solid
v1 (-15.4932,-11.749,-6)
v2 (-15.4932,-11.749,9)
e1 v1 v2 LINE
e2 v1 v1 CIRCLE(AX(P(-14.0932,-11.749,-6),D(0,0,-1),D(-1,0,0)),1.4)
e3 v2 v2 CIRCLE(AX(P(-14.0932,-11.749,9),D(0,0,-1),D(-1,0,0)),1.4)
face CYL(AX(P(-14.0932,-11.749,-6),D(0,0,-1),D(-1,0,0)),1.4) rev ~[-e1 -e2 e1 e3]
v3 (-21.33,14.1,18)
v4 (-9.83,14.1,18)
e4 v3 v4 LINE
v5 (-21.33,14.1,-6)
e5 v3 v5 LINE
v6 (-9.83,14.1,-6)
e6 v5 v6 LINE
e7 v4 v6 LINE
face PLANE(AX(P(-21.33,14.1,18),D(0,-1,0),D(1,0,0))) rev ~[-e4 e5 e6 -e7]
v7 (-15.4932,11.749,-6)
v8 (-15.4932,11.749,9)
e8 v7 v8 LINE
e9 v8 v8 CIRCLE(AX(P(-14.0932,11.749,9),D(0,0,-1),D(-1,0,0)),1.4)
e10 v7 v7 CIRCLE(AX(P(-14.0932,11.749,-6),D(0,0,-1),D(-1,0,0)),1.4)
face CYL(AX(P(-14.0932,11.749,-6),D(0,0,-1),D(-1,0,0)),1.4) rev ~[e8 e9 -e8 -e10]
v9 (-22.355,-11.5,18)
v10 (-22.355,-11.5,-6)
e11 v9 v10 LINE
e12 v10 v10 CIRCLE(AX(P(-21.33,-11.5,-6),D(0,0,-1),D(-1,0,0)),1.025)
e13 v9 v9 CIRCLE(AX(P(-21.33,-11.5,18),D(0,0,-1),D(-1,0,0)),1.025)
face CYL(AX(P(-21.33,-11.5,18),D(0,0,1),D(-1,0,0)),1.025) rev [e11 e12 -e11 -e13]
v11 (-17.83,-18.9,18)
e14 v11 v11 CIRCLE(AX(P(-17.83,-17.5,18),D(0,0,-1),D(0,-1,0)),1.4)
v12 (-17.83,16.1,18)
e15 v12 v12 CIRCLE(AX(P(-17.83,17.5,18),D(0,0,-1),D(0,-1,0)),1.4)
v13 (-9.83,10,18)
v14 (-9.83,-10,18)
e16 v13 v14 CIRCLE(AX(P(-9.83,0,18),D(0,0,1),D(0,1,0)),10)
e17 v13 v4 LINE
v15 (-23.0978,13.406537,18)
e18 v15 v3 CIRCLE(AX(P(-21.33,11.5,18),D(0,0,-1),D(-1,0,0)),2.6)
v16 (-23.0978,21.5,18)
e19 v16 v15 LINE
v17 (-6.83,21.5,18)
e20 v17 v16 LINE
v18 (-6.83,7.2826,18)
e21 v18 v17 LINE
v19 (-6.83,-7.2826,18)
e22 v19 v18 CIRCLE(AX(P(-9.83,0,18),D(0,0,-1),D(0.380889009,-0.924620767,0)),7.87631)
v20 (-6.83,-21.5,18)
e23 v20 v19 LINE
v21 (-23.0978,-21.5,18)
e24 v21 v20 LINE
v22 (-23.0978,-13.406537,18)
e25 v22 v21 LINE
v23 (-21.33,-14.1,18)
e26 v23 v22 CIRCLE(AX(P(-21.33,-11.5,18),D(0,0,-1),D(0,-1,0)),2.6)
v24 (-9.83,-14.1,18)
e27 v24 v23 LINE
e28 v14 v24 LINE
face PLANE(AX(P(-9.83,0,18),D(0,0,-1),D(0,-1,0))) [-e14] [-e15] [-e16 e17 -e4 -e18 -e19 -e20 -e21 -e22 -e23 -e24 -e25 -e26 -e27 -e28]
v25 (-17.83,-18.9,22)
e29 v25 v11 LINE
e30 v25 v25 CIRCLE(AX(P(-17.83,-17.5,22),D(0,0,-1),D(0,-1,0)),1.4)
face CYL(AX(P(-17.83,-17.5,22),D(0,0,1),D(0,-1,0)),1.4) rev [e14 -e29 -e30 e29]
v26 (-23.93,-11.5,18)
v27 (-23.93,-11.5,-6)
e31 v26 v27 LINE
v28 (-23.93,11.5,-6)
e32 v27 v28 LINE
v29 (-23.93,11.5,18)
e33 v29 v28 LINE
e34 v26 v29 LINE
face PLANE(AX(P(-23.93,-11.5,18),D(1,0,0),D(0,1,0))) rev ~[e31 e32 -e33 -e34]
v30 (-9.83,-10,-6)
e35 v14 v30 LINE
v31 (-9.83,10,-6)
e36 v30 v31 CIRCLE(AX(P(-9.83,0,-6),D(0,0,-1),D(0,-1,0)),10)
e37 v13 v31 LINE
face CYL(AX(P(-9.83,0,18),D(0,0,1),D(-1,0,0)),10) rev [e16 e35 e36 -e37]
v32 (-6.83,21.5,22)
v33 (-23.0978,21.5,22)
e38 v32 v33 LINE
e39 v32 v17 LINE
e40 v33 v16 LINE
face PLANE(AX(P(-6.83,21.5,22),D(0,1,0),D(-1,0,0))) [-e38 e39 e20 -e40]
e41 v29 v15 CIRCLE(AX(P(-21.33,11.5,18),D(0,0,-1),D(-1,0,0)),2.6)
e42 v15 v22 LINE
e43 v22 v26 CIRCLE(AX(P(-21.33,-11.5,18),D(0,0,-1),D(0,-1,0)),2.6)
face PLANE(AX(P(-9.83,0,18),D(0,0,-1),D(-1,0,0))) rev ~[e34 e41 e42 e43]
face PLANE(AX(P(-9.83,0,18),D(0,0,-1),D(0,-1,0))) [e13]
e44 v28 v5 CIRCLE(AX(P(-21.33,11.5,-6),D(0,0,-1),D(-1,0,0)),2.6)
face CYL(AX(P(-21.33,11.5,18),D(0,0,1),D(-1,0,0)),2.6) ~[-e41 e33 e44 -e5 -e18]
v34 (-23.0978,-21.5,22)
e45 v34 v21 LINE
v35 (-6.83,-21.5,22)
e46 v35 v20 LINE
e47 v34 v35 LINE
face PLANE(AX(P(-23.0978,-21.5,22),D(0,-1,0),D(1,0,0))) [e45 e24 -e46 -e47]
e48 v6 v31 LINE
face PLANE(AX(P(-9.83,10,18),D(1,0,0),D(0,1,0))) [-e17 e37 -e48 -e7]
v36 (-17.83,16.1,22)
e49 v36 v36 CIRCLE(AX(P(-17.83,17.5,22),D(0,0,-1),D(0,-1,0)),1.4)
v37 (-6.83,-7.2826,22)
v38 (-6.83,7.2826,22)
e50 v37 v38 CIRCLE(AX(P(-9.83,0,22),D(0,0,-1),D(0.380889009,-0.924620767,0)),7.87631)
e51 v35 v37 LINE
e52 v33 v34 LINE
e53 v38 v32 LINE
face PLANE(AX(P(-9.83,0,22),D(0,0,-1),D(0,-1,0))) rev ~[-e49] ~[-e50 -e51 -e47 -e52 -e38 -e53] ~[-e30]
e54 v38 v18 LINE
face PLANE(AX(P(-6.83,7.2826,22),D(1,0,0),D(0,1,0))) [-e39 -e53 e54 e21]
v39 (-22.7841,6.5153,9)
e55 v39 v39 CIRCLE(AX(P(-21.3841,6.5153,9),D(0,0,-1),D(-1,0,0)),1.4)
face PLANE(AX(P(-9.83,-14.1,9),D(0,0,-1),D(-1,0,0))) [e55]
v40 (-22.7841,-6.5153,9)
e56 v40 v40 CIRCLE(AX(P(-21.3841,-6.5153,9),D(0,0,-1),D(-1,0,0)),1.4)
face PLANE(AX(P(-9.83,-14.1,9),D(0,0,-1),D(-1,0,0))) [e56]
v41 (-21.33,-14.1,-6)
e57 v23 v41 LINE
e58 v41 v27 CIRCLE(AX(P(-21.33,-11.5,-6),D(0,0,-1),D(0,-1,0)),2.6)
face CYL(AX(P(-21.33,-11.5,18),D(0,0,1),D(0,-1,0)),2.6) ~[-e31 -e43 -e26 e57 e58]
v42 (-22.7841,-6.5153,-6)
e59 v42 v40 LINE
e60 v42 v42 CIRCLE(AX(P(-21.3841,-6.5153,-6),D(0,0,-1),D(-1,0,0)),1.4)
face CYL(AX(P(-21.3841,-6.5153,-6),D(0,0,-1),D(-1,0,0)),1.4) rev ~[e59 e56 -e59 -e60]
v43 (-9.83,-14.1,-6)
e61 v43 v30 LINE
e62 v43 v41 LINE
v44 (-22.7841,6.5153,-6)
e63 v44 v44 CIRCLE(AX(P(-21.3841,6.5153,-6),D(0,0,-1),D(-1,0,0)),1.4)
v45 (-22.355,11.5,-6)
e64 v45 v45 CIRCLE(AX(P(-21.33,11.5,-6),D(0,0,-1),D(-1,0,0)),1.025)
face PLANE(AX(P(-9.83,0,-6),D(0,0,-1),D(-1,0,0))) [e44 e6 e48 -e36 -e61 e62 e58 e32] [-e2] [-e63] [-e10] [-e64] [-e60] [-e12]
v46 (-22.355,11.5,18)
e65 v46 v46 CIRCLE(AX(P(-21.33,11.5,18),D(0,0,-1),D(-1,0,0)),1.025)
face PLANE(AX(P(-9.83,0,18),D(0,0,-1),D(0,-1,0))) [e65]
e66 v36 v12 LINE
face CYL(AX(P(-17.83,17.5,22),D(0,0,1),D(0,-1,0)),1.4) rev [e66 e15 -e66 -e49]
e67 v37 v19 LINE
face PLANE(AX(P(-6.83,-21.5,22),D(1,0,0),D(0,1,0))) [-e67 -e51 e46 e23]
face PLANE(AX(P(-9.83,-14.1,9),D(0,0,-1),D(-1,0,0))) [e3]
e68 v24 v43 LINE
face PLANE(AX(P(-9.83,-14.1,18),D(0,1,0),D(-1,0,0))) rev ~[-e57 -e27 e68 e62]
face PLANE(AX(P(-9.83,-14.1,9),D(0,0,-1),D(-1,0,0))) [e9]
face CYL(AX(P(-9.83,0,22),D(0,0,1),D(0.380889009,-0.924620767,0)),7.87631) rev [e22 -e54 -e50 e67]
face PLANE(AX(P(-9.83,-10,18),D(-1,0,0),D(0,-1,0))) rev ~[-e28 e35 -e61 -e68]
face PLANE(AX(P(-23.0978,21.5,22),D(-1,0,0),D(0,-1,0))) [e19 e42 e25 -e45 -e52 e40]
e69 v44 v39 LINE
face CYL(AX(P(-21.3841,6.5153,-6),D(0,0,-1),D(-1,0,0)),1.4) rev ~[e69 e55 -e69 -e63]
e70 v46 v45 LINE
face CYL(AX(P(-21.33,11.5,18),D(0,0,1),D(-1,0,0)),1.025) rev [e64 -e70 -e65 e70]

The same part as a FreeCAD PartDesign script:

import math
import FreeCAD as App
import Part
import Sketcher

doc = App.newDocument("Part")
body = doc.addObject("PartDesign::Body", "Body")

sketch1 = body.newObject("Sketcher::SketchObject", "Sketch")
sketch1.AttachmentSupport = (doc.getObject("XY_Plane"), [""])
sketch1.MapMode = "FlatFace"
sketch1.AttachmentOffset = App.Placement(App.Vector(0, 0, 22), App.Rotation())
sketch1.addGeometry([
    Part.LineSegment(App.Vector(-23.0978, -21.5, 0), App.Vector(-23.0978, 21.5, 0)),
    Part.LineSegment(App.Vector(-23.0978, 21.5, 0), App.Vector(-6.83, 21.5, 0)),
    Part.LineSegment(App.Vector(-6.83, 21.5, 0), App.Vector(-6.83, 7.2826, 0)),
    Part.ArcOfCircle(Part.Circle(App.Vector(-9.83, 0, 0), App.Vector(0, 0, 1), 7.87631), math.radians(67.611239), math.radians(292.388761)),
    Part.LineSegment(App.Vector(-6.83, -7.2826, 0), App.Vector(-6.83, -21.5, 0)),
    Part.LineSegment(App.Vector(-6.83, -21.5, 0), App.Vector(-23.0978, -21.5, 0)),
    Part.Circle(App.Vector(-17.83, -17.5, 0), App.Vector(0, 0, 1), 1.4),
    Part.Circle(App.Vector(-17.83, 17.5, 0), App.Vector(0, 0, 1), 1.4),
], False)
sketch1.addConstraint([
    Sketcher.Constraint("Coincident", 0, 2, 1, 1),
    Sketcher.Constraint("Coincident", 1, 2, 2, 1),
    Sketcher.Constraint("Coincident", 2, 2, 3, 1),
    Sketcher.Constraint("Coincident", 3, 2, 4, 1),
    Sketcher.Constraint("Coincident", 4, 2, 5, 1),
    Sketcher.Constraint("Coincident", 5, 2, 0, 1),
    Sketcher.Constraint("Vertical", 0),
    Sketcher.Constraint("Horizontal", 1),
    Sketcher.Constraint("Vertical", 2),
    Sketcher.Constraint("Vertical", 4),
    Sketcher.Constraint("Horizontal", 5),
    Sketcher.Constraint("Equal", 6, 7),
    Sketcher.Constraint("Symmetric", 6, 3, 7, 3, -1),
    Sketcher.Constraint("Symmetric", 2, 2, 3, 2, -1),
    Sketcher.Constraint("Equal", 2, 4),
    Sketcher.Constraint("Diameter", 6, 2.8),
    Sketcher.Constraint("DistanceY", 7, 3, 0, 2, 4.0),
    Sketcher.Constraint("DistanceY", 0, 1, 0, 2, 43.0),
    Sketcher.Constraint("DistanceX", 6, 3, 3, 3, 8.0),
    Sketcher.Constraint("DistanceX", 7, 3, 1, 2, 11.0),
    Sketcher.Constraint("Radius", 3, 7.8763),
    Sketcher.Constraint("DistanceX", 3, 3, -1, 1, 9.83),
    Sketcher.Constraint("DistanceX", 1, 1, 1, 2, 16.2678),
])
pad1 = body.newObject("PartDesign::Pad", "Pad")
pad1.Profile = sketch1
pad1.Length = 4
pad1.Reversed = True

sketch2 = body.newObject("Sketcher::SketchObject", "Sketch001")
sketch2.AttachmentSupport = (doc.getObject("XY_Plane"), [""])
sketch2.MapMode = "FlatFace"
sketch2.AttachmentOffset = App.Placement(App.Vector(0, 0, 18), App.Rotation())
sketch2.addGeometry([
    Part.LineSegment(App.Vector(-9.83, -10, 0), App.Vector(-9.83, -14.1, 0)),
    Part.LineSegment(App.Vector(-9.83, -14.1, 0), App.Vector(-21.33, -14.1, 0)),
    Part.ArcOfCircle(Part.Circle(App.Vector(-21.33, -11.5, 0), App.Vector(0, 0, 1), 2.6), math.radians(180), math.radians(270)),
    Part.LineSegment(App.Vector(-23.93, -11.5, 0), App.Vector(-23.93, 11.5, 0)),
    Part.ArcOfCircle(Part.Circle(App.Vector(-21.33, 11.5, 0), App.Vector(0, 0, 1), 2.6), math.radians(90), math.radians(180)),
    Part.LineSegment(App.Vector(-21.33, 14.1, 0), App.Vector(-9.83, 14.1, 0)),
    Part.LineSegment(App.Vector(-9.83, 14.1, 0), App.Vector(-9.83, 10, 0)),
    Part.ArcOfCircle(Part.Circle(App.Vector(-9.83, 0, 0), App.Vector(0, 0, 1), 10), math.radians(90), math.radians(270)),
    Part.Circle(App.Vector(-21.33, -11.5, 0), App.Vector(0, 0, 1), 1.025),
    Part.Circle(App.Vector(-21.33, 11.5, 0), App.Vector(0, 0, 1), 1.025),
], False)
sketch2.addConstraint([
    Sketcher.Constraint("Coincident", 0, 2, 1, 1),
    Sketcher.Constraint("Tangent", 1, 2, 2, 2),
    Sketcher.Constraint("Tangent", 2, 1, 3, 1),
    Sketcher.Constraint("Tangent", 3, 2, 4, 2),
    Sketcher.Constraint("Tangent", 4, 1, 5, 1),
    Sketcher.Constraint("Coincident", 5, 2, 6, 1),
    Sketcher.Constraint("Coincident", 6, 2, 7, 1),
    Sketcher.Constraint("Coincident", 7, 2, 0, 1),
    Sketcher.Constraint("Vertical", 0),
    Sketcher.Constraint("Horizontal", 1),
    Sketcher.Constraint("Vertical", 3),
    Sketcher.Constraint("Horizontal", 5),
    Sketcher.Constraint("Vertical", 6),
    Sketcher.Constraint("Coincident", 8, 3, 2, 3),
    Sketcher.Constraint("Coincident", 9, 3, 4, 3),
    Sketcher.Constraint("Equal", 2, 4),
    Sketcher.Constraint("Equal", 8, 9),
    Sketcher.Constraint("Symmetric", 0, 2, 5, 2, -1),
    Sketcher.Constraint("PointOnObject", 7, 3, -1),
    Sketcher.Constraint("Vertical", 7, 3, 0, 2),
    Sketcher.Constraint("Radius", 7, 10.0),
    Sketcher.Constraint("Radius", 2, 2.6),
    Sketcher.Constraint("Diameter", 8, 2.05),
    Sketcher.Constraint("DistanceY", 3, 1, 3, 2, 23.0),
    Sketcher.Constraint("DistanceX", 1, 2, 1, 1, 11.5),
    Sketcher.Constraint("DistanceX", 2, 3, -1, 1, 21.33),
])
pad2 = body.newObject("PartDesign::Pad", "Pad001")
pad2.Profile = sketch2
pad2.Length = 24
pad2.Reversed = True

sketch3 = body.newObject("Sketcher::SketchObject", "Sketch002")
sketch3.AttachmentSupport = (doc.getObject("XY_Plane"), [""])
sketch3.MapMode = "FlatFace"
sketch3.AttachmentOffset = App.Placement(App.Vector(0, 0, -6), App.Rotation())
sketch3.addGeometry([
    Part.Circle(App.Vector(-14.0932, -11.749, 0), App.Vector(0, 0, 1), 1.4),
    Part.Circle(App.Vector(-21.3841, -6.5153, 0), App.Vector(0, 0, 1), 1.4),
    Part.Circle(App.Vector(-14.0932, 11.749, 0), App.Vector(0, 0, 1), 1.4),
    Part.Circle(App.Vector(-21.3841, 6.5153, 0), App.Vector(0, 0, 1), 1.4),
], False)
sketch3.addConstraint([
    Sketcher.Constraint("Equal", 0, 1),
    Sketcher.Constraint("Equal", 1, 2),
    Sketcher.Constraint("Equal", 2, 3),
    Sketcher.Constraint("Symmetric", 0, 3, 2, 3, -1),
    Sketcher.Constraint("Symmetric", 1, 3, 3, 3, -1),
    Sketcher.Constraint("Diameter", 0, 2.8),
    Sketcher.Constraint("DistanceY", 0, 3, -1, 1, 11.749),
    Sketcher.Constraint("DistanceX", 1, 3, -1, 1, 21.384),
    Sketcher.Constraint("DistanceX", 1, 3, 0, 3, 7.291),
    Sketcher.Constraint("DistanceY", 1, 3, -1, 1, 6.5153),
])
pocket1 = body.newObject("PartDesign::Pocket", "Pocket")
pocket1.Profile = sketch3
pocket1.Length = 15
pocket1.Reversed = True

doc.recompute()
